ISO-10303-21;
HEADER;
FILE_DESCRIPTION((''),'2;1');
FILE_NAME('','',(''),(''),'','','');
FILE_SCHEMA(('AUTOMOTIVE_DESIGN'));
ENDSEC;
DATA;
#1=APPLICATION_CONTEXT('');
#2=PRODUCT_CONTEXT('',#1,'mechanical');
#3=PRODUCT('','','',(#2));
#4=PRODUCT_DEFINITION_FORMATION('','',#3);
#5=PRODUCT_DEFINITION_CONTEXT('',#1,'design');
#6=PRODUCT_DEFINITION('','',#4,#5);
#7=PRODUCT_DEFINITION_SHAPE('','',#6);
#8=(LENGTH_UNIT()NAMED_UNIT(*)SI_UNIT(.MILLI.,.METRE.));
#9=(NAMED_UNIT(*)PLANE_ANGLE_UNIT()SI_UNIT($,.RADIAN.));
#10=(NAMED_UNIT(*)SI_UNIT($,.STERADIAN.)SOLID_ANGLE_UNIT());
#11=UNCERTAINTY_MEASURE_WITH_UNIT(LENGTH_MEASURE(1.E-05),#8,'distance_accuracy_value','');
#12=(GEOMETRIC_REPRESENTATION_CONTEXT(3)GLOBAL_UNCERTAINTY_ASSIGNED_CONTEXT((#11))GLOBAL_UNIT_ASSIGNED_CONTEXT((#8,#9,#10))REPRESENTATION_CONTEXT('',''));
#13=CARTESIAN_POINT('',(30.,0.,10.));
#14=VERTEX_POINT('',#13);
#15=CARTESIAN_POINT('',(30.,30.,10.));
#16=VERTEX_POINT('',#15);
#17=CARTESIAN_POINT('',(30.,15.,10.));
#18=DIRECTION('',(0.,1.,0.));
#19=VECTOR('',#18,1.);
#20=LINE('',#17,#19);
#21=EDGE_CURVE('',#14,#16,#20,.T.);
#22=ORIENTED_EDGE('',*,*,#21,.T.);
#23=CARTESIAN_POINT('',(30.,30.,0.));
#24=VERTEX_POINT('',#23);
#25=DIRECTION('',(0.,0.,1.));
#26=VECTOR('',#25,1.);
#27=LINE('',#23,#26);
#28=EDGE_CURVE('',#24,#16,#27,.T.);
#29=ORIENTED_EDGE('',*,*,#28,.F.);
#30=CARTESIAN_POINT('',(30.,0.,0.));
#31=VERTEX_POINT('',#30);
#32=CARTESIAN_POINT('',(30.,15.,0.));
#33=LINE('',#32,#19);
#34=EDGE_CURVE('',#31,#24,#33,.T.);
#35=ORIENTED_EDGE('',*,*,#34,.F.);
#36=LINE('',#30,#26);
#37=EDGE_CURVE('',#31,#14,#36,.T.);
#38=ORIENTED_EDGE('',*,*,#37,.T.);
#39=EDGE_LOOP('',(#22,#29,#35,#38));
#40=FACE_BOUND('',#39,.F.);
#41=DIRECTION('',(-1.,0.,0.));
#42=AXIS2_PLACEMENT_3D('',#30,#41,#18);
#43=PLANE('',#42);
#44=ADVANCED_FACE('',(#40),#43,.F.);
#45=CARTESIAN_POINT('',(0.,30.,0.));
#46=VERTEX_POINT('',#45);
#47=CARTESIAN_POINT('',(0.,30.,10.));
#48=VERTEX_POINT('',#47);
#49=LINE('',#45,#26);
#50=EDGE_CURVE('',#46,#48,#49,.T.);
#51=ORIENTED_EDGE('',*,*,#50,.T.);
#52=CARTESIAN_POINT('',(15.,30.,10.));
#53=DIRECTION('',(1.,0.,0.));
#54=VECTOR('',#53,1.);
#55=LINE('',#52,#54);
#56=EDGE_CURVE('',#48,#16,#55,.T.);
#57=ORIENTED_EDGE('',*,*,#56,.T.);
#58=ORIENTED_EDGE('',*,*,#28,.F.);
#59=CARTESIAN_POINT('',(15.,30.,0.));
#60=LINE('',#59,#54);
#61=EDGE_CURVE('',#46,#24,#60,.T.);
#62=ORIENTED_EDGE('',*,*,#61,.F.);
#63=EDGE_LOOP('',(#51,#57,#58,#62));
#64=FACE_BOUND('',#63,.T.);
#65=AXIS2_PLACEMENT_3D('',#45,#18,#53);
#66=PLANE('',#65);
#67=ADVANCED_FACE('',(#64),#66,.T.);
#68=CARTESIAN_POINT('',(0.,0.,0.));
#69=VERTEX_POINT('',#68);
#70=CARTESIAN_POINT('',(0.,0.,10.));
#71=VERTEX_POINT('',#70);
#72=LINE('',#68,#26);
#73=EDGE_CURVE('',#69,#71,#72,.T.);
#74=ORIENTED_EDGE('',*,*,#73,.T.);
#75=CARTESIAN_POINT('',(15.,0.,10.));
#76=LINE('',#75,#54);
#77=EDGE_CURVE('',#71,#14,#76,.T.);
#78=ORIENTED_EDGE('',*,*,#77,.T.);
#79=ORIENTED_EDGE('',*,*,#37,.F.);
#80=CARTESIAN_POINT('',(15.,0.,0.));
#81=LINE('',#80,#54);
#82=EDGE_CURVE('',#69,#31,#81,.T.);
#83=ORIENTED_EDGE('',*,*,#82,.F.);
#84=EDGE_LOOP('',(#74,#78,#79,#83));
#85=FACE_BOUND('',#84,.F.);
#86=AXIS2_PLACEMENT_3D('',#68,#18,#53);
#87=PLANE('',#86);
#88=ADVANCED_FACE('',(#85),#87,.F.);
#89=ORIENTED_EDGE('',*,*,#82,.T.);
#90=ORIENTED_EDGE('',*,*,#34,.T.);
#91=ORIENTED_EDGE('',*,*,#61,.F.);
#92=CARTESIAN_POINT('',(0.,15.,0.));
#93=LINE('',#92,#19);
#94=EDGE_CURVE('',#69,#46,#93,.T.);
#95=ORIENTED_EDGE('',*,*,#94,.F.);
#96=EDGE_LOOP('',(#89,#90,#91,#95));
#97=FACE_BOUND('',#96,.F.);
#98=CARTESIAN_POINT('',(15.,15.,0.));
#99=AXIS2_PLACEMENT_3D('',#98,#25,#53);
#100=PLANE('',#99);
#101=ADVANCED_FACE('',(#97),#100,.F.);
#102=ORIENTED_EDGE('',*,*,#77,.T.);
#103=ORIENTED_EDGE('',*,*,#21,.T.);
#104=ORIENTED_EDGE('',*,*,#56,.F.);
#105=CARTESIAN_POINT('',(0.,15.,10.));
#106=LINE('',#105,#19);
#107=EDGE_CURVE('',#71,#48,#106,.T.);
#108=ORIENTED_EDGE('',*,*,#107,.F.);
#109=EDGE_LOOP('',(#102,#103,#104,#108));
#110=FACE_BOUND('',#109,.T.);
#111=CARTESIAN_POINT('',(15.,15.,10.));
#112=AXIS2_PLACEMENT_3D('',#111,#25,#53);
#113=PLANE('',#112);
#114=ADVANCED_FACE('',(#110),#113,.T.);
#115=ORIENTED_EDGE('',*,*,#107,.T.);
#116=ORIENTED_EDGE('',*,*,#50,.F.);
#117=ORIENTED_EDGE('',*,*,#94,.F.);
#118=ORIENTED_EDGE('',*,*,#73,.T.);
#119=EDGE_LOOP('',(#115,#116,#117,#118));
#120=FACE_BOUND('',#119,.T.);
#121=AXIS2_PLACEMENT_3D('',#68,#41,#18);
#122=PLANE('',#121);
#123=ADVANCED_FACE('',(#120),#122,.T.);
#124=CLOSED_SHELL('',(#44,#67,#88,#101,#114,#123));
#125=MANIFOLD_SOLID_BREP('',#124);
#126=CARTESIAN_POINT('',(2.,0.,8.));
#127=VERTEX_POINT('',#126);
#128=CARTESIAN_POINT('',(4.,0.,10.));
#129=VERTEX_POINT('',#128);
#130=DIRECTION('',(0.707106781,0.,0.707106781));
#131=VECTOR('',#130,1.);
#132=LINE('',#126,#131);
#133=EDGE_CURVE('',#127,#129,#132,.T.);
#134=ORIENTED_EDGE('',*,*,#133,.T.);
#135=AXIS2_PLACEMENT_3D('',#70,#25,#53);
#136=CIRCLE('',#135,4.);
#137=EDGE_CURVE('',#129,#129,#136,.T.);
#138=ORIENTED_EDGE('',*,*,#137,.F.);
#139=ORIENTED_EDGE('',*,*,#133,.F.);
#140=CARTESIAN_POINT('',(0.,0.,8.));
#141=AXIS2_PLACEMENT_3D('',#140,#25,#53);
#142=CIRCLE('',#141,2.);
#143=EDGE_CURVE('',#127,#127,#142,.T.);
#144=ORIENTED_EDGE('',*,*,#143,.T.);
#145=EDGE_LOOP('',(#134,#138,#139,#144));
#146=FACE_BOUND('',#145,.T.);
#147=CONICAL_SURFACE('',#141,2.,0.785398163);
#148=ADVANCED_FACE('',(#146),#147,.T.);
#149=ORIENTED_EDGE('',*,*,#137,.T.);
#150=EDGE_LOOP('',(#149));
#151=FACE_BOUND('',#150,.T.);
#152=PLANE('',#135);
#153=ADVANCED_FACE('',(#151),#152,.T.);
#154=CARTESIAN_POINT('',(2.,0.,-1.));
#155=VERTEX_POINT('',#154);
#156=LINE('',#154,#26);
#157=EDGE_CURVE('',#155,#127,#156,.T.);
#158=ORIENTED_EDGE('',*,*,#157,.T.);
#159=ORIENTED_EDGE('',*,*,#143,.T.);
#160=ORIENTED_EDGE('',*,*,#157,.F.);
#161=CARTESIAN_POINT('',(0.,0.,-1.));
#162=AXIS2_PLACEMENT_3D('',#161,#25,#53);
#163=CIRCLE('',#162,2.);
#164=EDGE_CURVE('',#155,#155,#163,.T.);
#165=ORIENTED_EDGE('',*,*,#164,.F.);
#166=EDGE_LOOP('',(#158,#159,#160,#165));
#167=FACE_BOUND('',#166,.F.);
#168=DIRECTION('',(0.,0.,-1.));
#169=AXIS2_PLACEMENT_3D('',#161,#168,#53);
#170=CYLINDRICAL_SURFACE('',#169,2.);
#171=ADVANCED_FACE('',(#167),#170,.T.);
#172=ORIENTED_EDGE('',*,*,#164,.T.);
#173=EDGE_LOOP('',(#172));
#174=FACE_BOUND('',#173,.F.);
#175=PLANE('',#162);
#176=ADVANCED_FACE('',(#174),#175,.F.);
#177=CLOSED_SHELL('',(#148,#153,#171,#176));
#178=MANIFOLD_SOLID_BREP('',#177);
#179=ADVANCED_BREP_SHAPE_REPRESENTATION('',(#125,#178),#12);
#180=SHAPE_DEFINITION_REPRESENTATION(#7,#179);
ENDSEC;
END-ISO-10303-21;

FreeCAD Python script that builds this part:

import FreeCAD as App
import Part
import Sketcher

doc = App.newDocument("Part")
body = doc.addObject("PartDesign::Body", "Body")

sketch1 = doc.addObject("Sketcher::SketchObject", "Sketch")
body.addObject(sketch1)
sketch1.AttachmentSupport = (doc.XY_Plane, [""])
sketch1.MapMode = "FlatFace"
sketch1.addGeometry(Part.LineSegment(App.Vector(0, 30, 0), App.Vector(0, 0, 0)), False)
sketch1.addGeometry(Part.LineSegment(App.Vector(0, 0, 0), App.Vector(30, 0, 0)), False)
sketch1.addGeometry(Part.LineSegment(App.Vector(30, 0, 0), App.Vector(30, 30, 0)), False)
sketch1.addGeometry(Part.LineSegment(App.Vector(30, 30, 0), App.Vector(0, 30, 0)), False)
sketch1.addConstraint(Sketcher.Constraint("Coincident", 0, 2, 1, 1))
sketch1.addConstraint(Sketcher.Constraint("Coincident", 1, 2, 2, 1))
sketch1.addConstraint(Sketcher.Constraint("Coincident", 2, 2, 3, 1))
sketch1.addConstraint(Sketcher.Constraint("Coincident", 3, 2, 0, 1))
sketch1.addConstraint(Sketcher.Constraint("Vertical", 0))
sketch1.addConstraint(Sketcher.Constraint("Horizontal", 1))
sketch1.addConstraint(Sketcher.Constraint("Vertical", 2))
sketch1.addConstraint(Sketcher.Constraint("Horizontal", 3))
sketch1.addConstraint(Sketcher.Constraint("Coincident", 0, 2, -1, 1))
sketch1.addConstraint(Sketcher.Constraint("Equal", 3, 0))
sketch1.addConstraint(Sketcher.Constraint("DistanceX", 1, 1, 1, 2, 30.0))
pad1 = doc.addObject("PartDesign::Pad", "Pad")
body.addObject(pad1)
pad1.Profile = sketch1
pad1.Length = 10
body2 = doc.addObject("PartDesign::Body", "Body001")

sketch2 = doc.addObject("Sketcher::SketchObject", "Sketch001")
body2.addObject(sketch2)
sketch2.AttachmentSupport = (doc.getObject("XZ_Plane001"), [""])
sketch2.MapMode = "FlatFace"
sketch2.addGeometry(Part.LineSegment(App.Vector(0, 8, 0), App.Vector(2, 8, 0)), False)
sketch2.addGeometry(Part.LineSegment(App.Vector(2, 8, 0), App.Vector(4, 10, 0)), False)
sketch2.addGeometry(Part.LineSegment(App.Vector(4, 10, 0), App.Vector(0, 10, 0)), False)
sketch2.addGeometry(Part.LineSegment(App.Vector(0, 10, 0), App.Vector(0, 8, 0)), False)
sketch2.addConstraint(Sketcher.Constraint("Coincident", 0, 2, 1, 1))
sketch2.addConstraint(Sketcher.Constraint("Coincident", 1, 2, 2, 1))
sketch2.addConstraint(Sketcher.Constraint("Coincident", 2, 2, 3, 1))
sketch2.addConstraint(Sketcher.Constraint("Coincident", 3, 2, 0, 1))
sketch2.addConstraint(Sketcher.Constraint("Horizontal", 0))
sketch2.addConstraint(Sketcher.Constraint("Horizontal", 2))
sketch2.addConstraint(Sketcher.Constraint("Vertical", 3))
sketch2.addConstraint(Sketcher.Constraint("PointOnObject", 2, 2, -2))
sketch2.addConstraint(Sketcher.Constraint("Equal", 0, 3))
sketch2.addConstraint(Sketcher.Constraint("DistanceX", 0, 1, 0, 2, 2.0))
sketch2.addConstraint(Sketcher.Constraint("DistanceX", 2, 2, 2, 1, 4.0))
sketch2.addConstraint(Sketcher.Constraint("DistanceY", -1, 1, 0, 2, 8.0))
revolution = doc.addObject("PartDesign::Revolution", "Revolution")
body2.addObject(revolution)
revolution.Profile = sketch2
revolution.ReferenceAxis = (sketch2, ["V_Axis"])
revolution.Angle = 360
body3 = doc.addObject("PartDesign::Body", "Body002")

sketch3 = doc.addObject("Sketcher::SketchObject", "Sketch002")
body3.addObject(sketch3)
sketch3.AttachmentSupport = (doc.getObject("XY_Plane002"), [""])
sketch3.MapMode = "FlatFace"
sketch3.AttachmentOffset = App.Placement(App.Vector(0, 0, -1), App.Rotation())
sketch3.addGeometry(Part.Circle(App.Vector(0, 0, 0), App.Vector(0, 0, 1), 2), False)
sketch3.addConstraint(Sketcher.Constraint("Coincident", 0, 3, -1, 1))
sketch3.addConstraint(Sketcher.Constraint("Diameter", 0, 4.0))
pad2 = doc.addObject("PartDesign::Pad", "Pad001")
body3.addObject(pad2)
pad2.Profile = sketch3
pad2.Length = 11
doc.recompute()

boolean = doc.addObject("PartDesign::Boolean", "Boolean")
body3.addObject(boolean)
boolean.Type = "Fuse"
boolean.addObjects([body2])

doc.recompute()
